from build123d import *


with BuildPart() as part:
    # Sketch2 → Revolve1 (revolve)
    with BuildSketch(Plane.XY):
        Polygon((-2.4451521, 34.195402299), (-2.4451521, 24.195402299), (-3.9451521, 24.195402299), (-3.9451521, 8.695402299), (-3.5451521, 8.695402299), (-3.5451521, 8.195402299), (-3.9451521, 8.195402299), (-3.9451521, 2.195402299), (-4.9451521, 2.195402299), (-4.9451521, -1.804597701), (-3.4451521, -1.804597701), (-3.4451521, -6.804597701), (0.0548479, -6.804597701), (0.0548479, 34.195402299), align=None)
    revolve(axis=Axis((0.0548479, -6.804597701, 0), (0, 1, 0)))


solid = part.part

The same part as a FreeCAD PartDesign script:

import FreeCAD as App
import Part
import Sketcher

V = App.Vector
Q = App.Units.Quantity

doc = App.newDocument("Part")
params = doc.addObject("Spreadsheet::Sheet", "Params")
for row, (alias, value) in enumerate([
    ("sketch1_width", "1 mm"),
    ("sketch1_height", "10 mm"),
    ("sketch1_height2", "6 mm"),
    ("sketch1_height3", "4 mm"),
    ("sketch1_height4", "5 mm"),
    ("revolution_angle", "360 deg"),
], start=1):
    params.set(f"A{row}", alias)
    params.set(f"B{row}", "=" + value)
    params.setAlias(f"B{row}", alias)

body = doc.addObject("PartDesign::Body", "Body")

sketch1 = body.newObject("Sketcher::SketchObject", "Sketch")
sketch1.AttachmentSupport = (doc.getObject("XY_Plane"), [""])
sketch1.MapMode = "FlatFace"
sketch1.addGeometry([
    Part.LineSegment(V(-2.45, 34.2, 0), V(-2.45, 24.2, 0)),
    Part.LineSegment(V(-2.45, 24.2, 0), V(-3.95, 24.2, 0)),
    Part.LineSegment(V(-3.95, 24.2, 0), V(-3.95, 8.7, 0)),
    Part.LineSegment(V(-3.95, 8.7, 0), V(-3.55, 8.7, 0)),
    Part.LineSegment(V(-3.55, 8.7, 0), V(-3.55, 8.2, 0)),
    Part.LineSegment(V(-3.55, 8.2, 0), V(-3.95, 8.2, 0)),
    Part.LineSegment(V(-3.95, 8.2, 0), V(-3.95, 2.2, 0)),
    Part.LineSegment(V(-3.95, 2.2, 0), V(-4.95, 2.2, 0)),
    Part.LineSegment(V(-4.95, 2.2, 0), V(-4.95, -1.8, 0)),
    Part.LineSegment(V(-4.95, -1.8, 0), V(-3.45, -1.8, 0)),
    Part.LineSegment(V(-3.45, -1.8, 0), V(-3.45, -6.8, 0)),
    Part.LineSegment(V(-3.45, -6.8, 0), V(0.05, -6.8, 0)),
    Part.LineSegment(V(0.05, -6.8, 0), V(0.05, 34.2, 0)),
    Part.LineSegment(V(0.05, 34.2, 0), V(-2.45, 34.2, 0)),
], False)
sketch1.addGeometry(Part.LineSegment(V(0.05, -6.8, 0), V(0.05, 34.2, 0)), True)
sketch1.addConstraint([
    Sketcher.Constraint("Coincident", 0, 2, 1, 1),
    Sketcher.Constraint("Coincident", 1, 2, 2, 1),
    Sketcher.Constraint("Coincident", 2, 2, 3, 1),
    Sketcher.Constraint("Coincident", 3, 2, 4, 1),
    Sketcher.Constraint("Coincident", 4, 2, 5, 1),
    Sketcher.Constraint("Coincident", 5, 2, 6, 1),
    Sketcher.Constraint("Coincident", 6, 2, 7, 1),
    Sketcher.Constraint("Coincident", 7, 2, 8, 1),
    Sketcher.Constraint("Coincident", 8, 2, 9, 1),
    Sketcher.Constraint("Coincident", 9, 2, 10, 1),
    Sketcher.Constraint("Coincident", 10, 2, 11, 1),
    Sketcher.Constraint("Coincident", 11, 2, 12, 1),
    Sketcher.Constraint("Coincident", 12, 2, 13, 1),
    Sketcher.Constraint("Coincident", 13, 2, 0, 1),
    Sketcher.Constraint("Vertical", 0),
    Sketcher.Constraint("Horizontal", 1),
    Sketcher.Constraint("Vertical", 2),
    Sketcher.Constraint("Horizontal", 3),
    Sketcher.Constraint("Vertical", 4),
    Sketcher.Constraint("Horizontal", 5),
    Sketcher.Constraint("Vertical", 6),
    Sketcher.Constraint("Horizontal", 7),
    Sketcher.Constraint("Vertical", 8),
    Sketcher.Constraint("Horizontal", 9),
    Sketcher.Constraint("Vertical", 10),
    Sketcher.Constraint("Horizontal", 11),
    Sketcher.Constraint("Vertical", 12),
    Sketcher.Constraint("Horizontal", 13),
    Sketcher.Constraint("Vertical", 14),
    Sketcher.Constraint("Coincident", 14, 1, 11, 2),
    Sketcher.Constraint("Horizontal", 13, 2, 14, 2),
    Sketcher.Constraint("Vertical", 2, 2, 5, 2),
    Sketcher.Constraint("Equal", 1, 9),
    Sketcher.Constraint("DistanceX", 7, 2, 7, 1, Q("1 mm")),
    Sketcher.Constraint("DistanceY", 0, 2, 0, 1, Q("10 mm")),
    Sketcher.Constraint("DistanceY", 6, 2, 6, 1, Q("6 mm")),
    Sketcher.Constraint("DistanceY", 8, 2, 8, 1, Q("4 mm")),
    Sketcher.Constraint("DistanceY", 10, 2, 10, 1, Q("5 mm")),
    Sketcher.Constraint("DistanceY", 12, 1, 12, 2, Q("41 mm")),
    Sketcher.Constraint("DistanceX", 1, 2, 1, 1, Q("1.5 mm")),
    Sketcher.Constraint("DistanceX", 3, 1, 3, 2, Q("0.4 mm")),
    Sketcher.Constraint("DistanceX", 11, 1, 11, 2, Q("3.5 mm")),
    Sketcher.Constraint("DistanceY", 2, 2, 2, 1, Q("15.5 mm")),
    Sketcher.Constraint("DistanceX", 0, 2, -1, 1, Q("2.445152 mm")),
    Sketcher.Constraint("DistanceY", -1, 1, 0, 2, Q("24.195402 mm")),
])
sketch1.setExpression("Constraints[33]", "Params.sketch1_width")
sketch1.setExpression("Constraints[34]", "Params.sketch1_height")
sketch1.setExpression("Constraints[35]", "Params.sketch1_height2")
sketch1.setExpression("Constraints[36]", "Params.sketch1_height3")
sketch1.setExpression("Constraints[37]", "Params.sketch1_height4")
revolution = body.newObject("PartDesign::Revolution", "Revolution")
revolution.Profile = sketch1
revolution.ReferenceAxis = (sketch1, ["Axis0"])
revolution.setExpression("Angle", "Params.revolution_angle")

doc.recompute()
